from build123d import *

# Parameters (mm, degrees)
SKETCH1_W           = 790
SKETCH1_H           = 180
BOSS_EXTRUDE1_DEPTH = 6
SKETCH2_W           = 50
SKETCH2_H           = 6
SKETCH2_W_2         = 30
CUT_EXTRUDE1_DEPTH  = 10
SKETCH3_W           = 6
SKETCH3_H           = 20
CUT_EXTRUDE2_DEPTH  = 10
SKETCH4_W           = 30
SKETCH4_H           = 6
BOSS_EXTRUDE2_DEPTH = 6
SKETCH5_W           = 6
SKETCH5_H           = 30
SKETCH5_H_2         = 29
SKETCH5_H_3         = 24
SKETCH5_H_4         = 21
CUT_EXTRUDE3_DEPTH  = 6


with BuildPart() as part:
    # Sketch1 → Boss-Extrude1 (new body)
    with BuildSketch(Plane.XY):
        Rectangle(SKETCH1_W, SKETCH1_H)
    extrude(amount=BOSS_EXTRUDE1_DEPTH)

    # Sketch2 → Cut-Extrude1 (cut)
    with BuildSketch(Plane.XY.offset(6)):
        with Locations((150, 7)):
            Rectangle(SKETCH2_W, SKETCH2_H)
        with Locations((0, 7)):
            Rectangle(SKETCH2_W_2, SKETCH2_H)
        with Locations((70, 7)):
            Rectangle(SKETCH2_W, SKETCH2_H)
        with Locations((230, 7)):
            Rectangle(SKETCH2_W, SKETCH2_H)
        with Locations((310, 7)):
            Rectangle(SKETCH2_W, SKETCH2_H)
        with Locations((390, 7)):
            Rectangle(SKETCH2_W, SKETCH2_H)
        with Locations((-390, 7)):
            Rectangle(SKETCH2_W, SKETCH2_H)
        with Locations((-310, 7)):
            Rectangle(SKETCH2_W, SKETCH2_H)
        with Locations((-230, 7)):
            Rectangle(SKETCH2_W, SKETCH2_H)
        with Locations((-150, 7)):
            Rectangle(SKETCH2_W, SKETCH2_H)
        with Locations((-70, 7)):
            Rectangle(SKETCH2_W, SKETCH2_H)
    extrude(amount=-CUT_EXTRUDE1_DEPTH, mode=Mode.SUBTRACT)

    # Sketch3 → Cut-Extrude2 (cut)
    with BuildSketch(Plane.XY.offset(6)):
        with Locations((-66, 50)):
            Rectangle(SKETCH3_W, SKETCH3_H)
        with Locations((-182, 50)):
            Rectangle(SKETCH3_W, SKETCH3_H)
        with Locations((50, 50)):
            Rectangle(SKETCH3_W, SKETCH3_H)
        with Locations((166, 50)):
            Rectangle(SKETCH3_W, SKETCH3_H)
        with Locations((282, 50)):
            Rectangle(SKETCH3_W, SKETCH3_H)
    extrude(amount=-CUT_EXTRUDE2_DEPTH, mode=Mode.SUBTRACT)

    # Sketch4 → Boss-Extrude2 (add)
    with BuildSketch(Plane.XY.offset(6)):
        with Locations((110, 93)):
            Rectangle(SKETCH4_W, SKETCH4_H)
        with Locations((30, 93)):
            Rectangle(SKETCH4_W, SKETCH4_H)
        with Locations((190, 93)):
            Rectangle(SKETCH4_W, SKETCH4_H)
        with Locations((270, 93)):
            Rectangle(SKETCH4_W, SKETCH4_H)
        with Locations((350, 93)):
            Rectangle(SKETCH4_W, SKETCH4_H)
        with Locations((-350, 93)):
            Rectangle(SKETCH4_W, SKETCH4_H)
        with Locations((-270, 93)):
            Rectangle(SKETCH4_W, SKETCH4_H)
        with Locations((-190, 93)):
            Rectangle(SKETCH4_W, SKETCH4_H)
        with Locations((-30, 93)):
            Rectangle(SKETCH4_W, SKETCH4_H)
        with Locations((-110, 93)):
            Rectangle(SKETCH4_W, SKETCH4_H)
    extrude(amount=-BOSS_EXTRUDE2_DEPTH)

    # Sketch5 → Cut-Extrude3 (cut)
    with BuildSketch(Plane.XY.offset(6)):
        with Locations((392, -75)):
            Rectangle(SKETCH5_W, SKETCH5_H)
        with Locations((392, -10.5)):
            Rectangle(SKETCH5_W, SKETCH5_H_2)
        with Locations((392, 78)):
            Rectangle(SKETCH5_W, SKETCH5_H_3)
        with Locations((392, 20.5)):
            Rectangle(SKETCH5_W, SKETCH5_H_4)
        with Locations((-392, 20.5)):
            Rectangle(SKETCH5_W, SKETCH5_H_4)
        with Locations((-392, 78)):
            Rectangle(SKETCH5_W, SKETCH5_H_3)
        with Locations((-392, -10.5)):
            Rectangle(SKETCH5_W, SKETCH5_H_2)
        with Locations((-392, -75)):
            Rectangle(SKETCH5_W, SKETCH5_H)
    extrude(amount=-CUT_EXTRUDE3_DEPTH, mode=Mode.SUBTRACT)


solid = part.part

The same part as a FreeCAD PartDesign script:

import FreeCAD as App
import Part
import Sketcher
from FreeCAD import Vector
Q = App.Units.Quantity


def add_polygon(sketch, points):
    """Adds a closed chain of lines whose ends are joined by coincident constraints."""
    first, n = sketch.GeometryCount, len(points)
    for a, b in zip(points, points[1:] + points[:1]):
        sketch.addGeometry(Part.LineSegment(App.Vector(*a, 0), App.Vector(*b, 0)), False)
    for i in range(n):
        sketch.addConstraint(Sketcher.Constraint("Coincident", first + i, 2, first + (i + 1) % n, 1))

doc = App.newDocument("Part")
body = doc.addObject("PartDesign::Body", "Body")

# Sketch on XY plane
sketch1 = body.newObject("Sketcher::SketchObject", "Sketch")
sketch1.AttachmentSupport = (doc.getObject("XY_Plane"), [""])
sketch1.MapMode = "FlatFace"
add_polygon(sketch1, [(-395, 90), (-395, -90), (395, -90), (395, 90)])  # lines 0-3
sketch1.addConstraint([
    Sketcher.Constraint("Vertical", 0),
    Sketcher.Constraint("Horizontal", 1),
    Sketcher.Constraint("Vertical", 2),
    Sketcher.Constraint("Horizontal", 3),
    Sketcher.Constraint("Symmetric", 0, 2, 2, 2, -1, 1),
    Sketcher.Constraint("DistanceX", 1, 1, 1, 2, Q("790 mm")),
    Sketcher.Constraint("DistanceY", 0, 2, 0, 1, Q("180 mm")),
])
pad1 = body.newObject("PartDesign::Pad", "Pad")
pad1.Profile = sketch1
pad1.Length = 6

# Sketch on XY plane
sketch2 = body.newObject("Sketcher::SketchObject", "Sketch001")
sketch2.AttachmentSupport = (doc.getObject("XY_Plane"), [""])
sketch2.MapMode = "FlatFace"
sketch2.AttachmentOffset = App.Placement(Vector(0, 0, 6), App.Rotation())
add_polygon(sketch2, [(125, 10), (125, 4), (175, 4), (175, 10)])  # lines 0-3
add_polygon(sketch2, [(-15, 10), (-15, 4), (15, 4), (15, 10)])  # lines 4-7
add_polygon(sketch2, [(45, 10), (45, 4), (95, 4), (95, 10)])  # lines 8-11
add_polygon(sketch2, [(205, 10), (205, 4), (255, 4), (255, 10)])  # lines 12-15
add_polygon(sketch2, [(285, 10), (285, 4), (335, 4), (335, 10)])  # lines 16-19
add_polygon(sketch2, [(365, 10), (365, 4), (415, 4), (415, 10)])  # lines 20-23
add_polygon(sketch2, [(-415, 10), (-415, 4), (-365, 4), (-365, 10)])  # lines 24-27
add_polygon(sketch2, [(-335, 10), (-335, 4), (-285, 4), (-285, 10)])  # lines 28-31
add_polygon(sketch2, [(-255, 10), (-255, 4), (-205, 4), (-205, 10)])  # lines 32-35
add_polygon(sketch2, [(-175, 10), (-175, 4), (-125, 4), (-125, 10)])  # lines 36-39
add_polygon(sketch2, [(-95, 10), (-95, 4), (-45, 4), (-45, 10)])  # lines 40-43
sketch2.addConstraint([
    Sketcher.Constraint("Vertical", 0),
    Sketcher.Constraint("Horizontal", 1),
    Sketcher.Constraint("Vertical", 2),
    Sketcher.Constraint("Horizontal", 3),
    Sketcher.Constraint("Vertical", 4),
    Sketcher.Constraint("Horizontal", 5),
    Sketcher.Constraint("Vertical", 6),
    Sketcher.Constraint("Horizontal", 7),
    Sketcher.Constraint("Vertical", 8),
    Sketcher.Constraint("Horizontal", 9),
    Sketcher.Constraint("Vertical", 10),
    Sketcher.Constraint("Horizontal", 11),
    Sketcher.Constraint("Vertical", 12),
    Sketcher.Constraint("Horizontal", 13),
    Sketcher.Constraint("Vertical", 14),
    Sketcher.Constraint("Horizontal", 15),
    Sketcher.Constraint("Vertical", 16),
    Sketcher.Constraint("Horizontal", 17),
    Sketcher.Constraint("Vertical", 18),
    Sketcher.Constraint("Horizontal", 19),
    Sketcher.Constraint("Vertical", 20),
    Sketcher.Constraint("Horizontal", 21),
    Sketcher.Constraint("Vertical", 22),
    Sketcher.Constraint("Horizontal", 23),
    Sketcher.Constraint("Vertical", 24),
    Sketcher.Constraint("Horizontal", 25),
    Sketcher.Constraint("Vertical", 26),
    Sketcher.Constraint("Horizontal", 27),
    Sketcher.Constraint("Vertical", 28),
    Sketcher.Constraint("Horizontal", 29),
    Sketcher.Constraint("Vertical", 30),
    Sketcher.Constraint("Horizontal", 31),
    Sketcher.Constraint("Vertical", 32),
    Sketcher.Constraint("Horizontal", 33),
    Sketcher.Constraint("Vertical", 34),
    Sketcher.Constraint("Horizontal", 35),
    Sketcher.Constraint("Vertical", 36),
    Sketcher.Constraint("Horizontal", 37),
    Sketcher.Constraint("Vertical", 38),
    Sketcher.Constraint("Horizontal", 39),
    Sketcher.Constraint("Vertical", 40),
    Sketcher.Constraint("Horizontal", 41),
    Sketcher.Constraint("Vertical", 42),
    Sketcher.Constraint("Horizontal", 43),
    Sketcher.Constraint("Symmetric", 21, 2, 24, 2, -2),
    Sketcher.Constraint("Symmetric", 23, 2, 26, 2, -2),
    Sketcher.Constraint("Symmetric", 17, 2, 28, 2, -2),
    Sketcher.Constraint("Symmetric", 19, 2, 30, 2, -2),
    Sketcher.Constraint("Symmetric", 13, 2, 32, 2, -2),
    Sketcher.Constraint("Symmetric", 15, 2, 34, 2, -2),
    Sketcher.Constraint("Symmetric", 1, 2, 36, 2, -2),
    Sketcher.Constraint("Symmetric", 3, 2, 38, 2, -2),
    Sketcher.Constraint("Symmetric", 9, 2, 40, 2, -2),
    Sketcher.Constraint("Symmetric", 11, 2, 42, 2, -2),
    Sketcher.Constraint("Horizontal", 1, 2, 4, 2),
    Sketcher.Constraint("Horizontal", 3, 2, 6, 2),
    Sketcher.Constraint("Horizontal", 5, 2, 8, 2),
    Sketcher.Constraint("Horizontal", 7, 2, 10, 2),
    Sketcher.Constraint("Horizontal", 9, 2, 12, 2),
    Sketcher.Constraint("Horizontal", 11, 2, 14, 2),
    Sketcher.Constraint("Horizontal", 13, 2, 16, 2),
    Sketcher.Constraint("Horizontal", 15, 2, 18, 2),
    Sketcher.Constraint("Horizontal", 17, 2, 20, 2),
    Sketcher.Constraint("Horizontal", 19, 2, 22, 2),
    Sketcher.Constraint("Equal", 3, 9),
    Sketcher.Constraint("Equal", 11, 13),
    Sketcher.Constraint("Equal", 15, 17),
    Sketcher.Constraint("Equal", 19, 21),
    Sketcher.Constraint("DistanceX", 1, 1, 1, 2, Q("50 mm")),
    Sketcher.Constraint("DistanceX", 5, 1, 5, 2, Q("30 mm")),
    Sketcher.Constraint("DistanceY", 0, 2, 0, 1, Q("6 mm")),
    Sketcher.Constraint("DistanceX", -1, 1, 0, 2, Q("125 mm")),
    Sketcher.Constraint("DistanceY", -1, 1, 0, 2, Q("4 mm")),
    Sketcher.Constraint("DistanceX", 4, 2, -1, 1, Q("15 mm")),
    Sketcher.Constraint("DistanceX", -1, 1, 8, 2, Q("45 mm")),
    Sketcher.Constraint("DistanceX", -1, 1, 12, 2, Q("205 mm")),
    Sketcher.Constraint("DistanceX", -1, 1, 16, 2, Q("285 mm")),
    Sketcher.Constraint("DistanceX", -1, 1, 20, 2, Q("365 mm")),
])
pocket1 = body.newObject("PartDesign::Pocket", "Pocket")
pocket1.Profile = sketch2
pocket1.Length = 10

# Sketch on XY plane
sketch3 = body.newObject("Sketcher::SketchObject", "Sketch002")
sketch3.AttachmentSupport = (doc.getObject("XY_Plane"), [""])
sketch3.MapMode = "FlatFace"
sketch3.AttachmentOffset = App.Placement(Vector(0, 0, 6), App.Rotation())
add_polygon(sketch3, [(-69, 60), (-69, 40), (-63, 40), (-63, 60)])  # lines 0-3
add_polygon(sketch3, [(-185, 60), (-185, 40), (-179, 40), (-179, 60)])  # lines 4-7
add_polygon(sketch3, [(47, 60), (47, 40), (53, 40), (53, 60)])  # lines 8-11
add_polygon(sketch3, [(163, 60), (163, 40), (169, 40), (169, 60)])  # lines 12-15
add_polygon(sketch3, [(279, 60), (279, 40), (285, 40), (285, 60)])  # lines 16-19
sketch3.addConstraint([
    Sketcher.Constraint("Vertical", 0),
    Sketcher.Constraint("Horizontal", 1),
    Sketcher.Constraint("Vertical", 2),
    Sketcher.Constraint("Horizontal", 3),
    Sketcher.Constraint("Vertical", 4),
    Sketcher.Constraint("Horizontal", 5),
    Sketcher.Constraint("Vertical", 6),
    Sketcher.Constraint("Horizontal", 7),
    Sketcher.Constraint("Vertical", 8),
    Sketcher.Constraint("Horizontal", 9),
    Sketcher.Constraint("Vertical", 10),
    Sketcher.Constraint("Horizontal", 11),
    Sketcher.Constraint("Vertical", 12),
    Sketcher.Constraint("Horizontal", 13),
    Sketcher.Constraint("Vertical", 14),
    Sketcher.Constraint("Horizontal", 15),
    Sketcher.Constraint("Vertical", 16),
    Sketcher.Constraint("Horizontal", 17),
    Sketcher.Constraint("Vertical", 18),
    Sketcher.Constraint("Horizontal", 19),
    Sketcher.Constraint("Horizontal", 1, 2, 4, 2),
    Sketcher.Constraint("Horizontal", 3, 2, 6, 2),
    Sketcher.Constraint("Horizontal", 5, 2, 8, 2),
    Sketcher.Constraint("Horizontal", 7, 2, 10, 2),
    Sketcher.Constraint("Horizontal", 9, 2, 12, 2),
    Sketcher.Constraint("Horizontal", 11, 2, 14, 2),
    Sketcher.Constraint("Horizontal", 13, 2, 16, 2),
    Sketcher.Constraint("Horizontal", 15, 2, 18, 2),
    Sketcher.Constraint("Equal", 3, 5),
    Sketcher.Constraint("Equal", 7, 9),
    Sketcher.Constraint("Equal", 11, 13),
    Sketcher.Constraint("Equal", 15, 17),
    Sketcher.Constraint("DistanceX", 1, 1, 1, 2, Q("6 mm")),
    Sketcher.Constraint("DistanceY", 0, 2, 0, 1, Q("20 mm")),
    Sketcher.Constraint("DistanceX", 0, 2, -1, 1, Q("69 mm")),
    Sketcher.Constraint("DistanceY", -1, 1, 0, 2, Q("40 mm")),
    Sketcher.Constraint("DistanceX", 4, 2, -1, 1, Q("185 mm")),
    Sketcher.Constraint("DistanceX", -1, 1, 8, 2, Q("47 mm")),
    Sketcher.Constraint("DistanceX", -1, 1, 12, 2, Q("163 mm")),
    Sketcher.Constraint("DistanceX", -1, 1, 16, 2, Q("279 mm")),
])
pocket2 = body.newObject("PartDesign::Pocket", "Pocket001")
pocket2.Profile = sketch3
pocket2.Length = 10

# Sketch on XY plane
sketch4 = body.newObject("Sketcher::SketchObject", "Sketch003")
sketch4.AttachmentSupport = (doc.getObject("XY_Plane"), [""])
sketch4.MapMode = "FlatFace"
sketch4.AttachmentOffset = App.Placement(Vector(0, 0, 6), App.Rotation())
add_polygon(sketch4, [(95, 96), (95, 90), (125, 90), (125, 96)])  # lines 0-3
add_polygon(sketch4, [(15, 96), (15, 90), (45, 90), (45, 96)])  # lines 4-7
add_polygon(sketch4, [(175, 96), (175, 90), (205, 90), (205, 96)])  # lines 8-11
add_polygon(sketch4, [(255, 96), (255, 90), (285, 90), (285, 96)])  # lines 12-15
add_polygon(sketch4, [(335, 96), (335, 90), (365, 90), (365, 96)])  # lines 16-19
add_polygon(sketch4, [(-365, 96), (-365, 90), (-335, 90), (-335, 96)])  # lines 20-23
add_polygon(sketch4, [(-285, 96), (-285, 90), (-255, 90), (-255, 96)])  # lines 24-27
add_polygon(sketch4, [(-205, 96), (-205, 90), (-175, 90), (-175, 96)])  # lines 28-31
add_polygon(sketch4, [(-45, 96), (-45, 90), (-15, 90), (-15, 96)])  # lines 32-35
add_polygon(sketch4, [(-125, 96), (-125, 90), (-95, 90), (-95, 96)])  # lines 36-39
sketch4.addConstraint([
    Sketcher.Constraint("Vertical", 0),
    Sketcher.Constraint("Horizontal", 1),
    Sketcher.Constraint("Vertical", 2),
    Sketcher.Constraint("Horizontal", 3),
    Sketcher.Constraint("Vertical", 4),
    Sketcher.Constraint("Horizontal", 5),
    Sketcher.Constraint("Vertical", 6),
    Sketcher.Constraint("Horizontal", 7),
    Sketcher.Constraint("Vertical", 8),
    Sketcher.Constraint("Horizontal", 9),
    Sketcher.Constraint("Vertical", 10),
    Sketcher.Constraint("Horizontal", 11),
    Sketcher.Constraint("Vertical", 12),
    Sketcher.Constraint("Horizontal", 13),
    Sketcher.Constraint("Vertical", 14),
    Sketcher.Constraint("Horizontal", 15),
    Sketcher.Constraint("Vertical", 16),
    Sketcher.Constraint("Horizontal", 17),
    Sketcher.Constraint("Vertical", 18),
    Sketcher.Constraint("Horizontal", 19),
    Sketcher.Constraint("Vertical", 20),
    Sketcher.Constraint("Horizontal", 21),
    Sketcher.Constraint("Vertical", 22),
    Sketcher.Constraint("Horizontal", 23),
    Sketcher.Constraint("Vertical", 24),
    Sketcher.Constraint("Horizontal", 25),
    Sketcher.Constraint("Vertical", 26),
    Sketcher.Constraint("Horizontal", 27),
    Sketcher.Constraint("Vertical", 28),
    Sketcher.Constraint("Horizontal", 29),
    Sketcher.Constraint("Vertical", 30),
    Sketcher.Constraint("Horizontal", 31),
    Sketcher.Constraint("Vertical", 32),
    Sketcher.Constraint("Horizontal", 33),
    Sketcher.Constraint("Vertical", 34),
    Sketcher.Constraint("Horizontal", 35),
    Sketcher.Constraint("Vertical", 36),
    Sketcher.Constraint("Horizontal", 37),
    Sketcher.Constraint("Vertical", 38),
    Sketcher.Constraint("Horizontal", 39),
    Sketcher.Constraint("Symmetric", 17, 2, 20, 2, -2),
    Sketcher.Constraint("Symmetric", 19, 2, 22, 2, -2),
    Sketcher.Constraint("Symmetric", 13, 2, 24, 2, -2),
    Sketcher.Constraint("Symmetric", 15, 2, 26, 2, -2),
    Sketcher.Constraint("Symmetric", 9, 2, 28, 2, -2),
    Sketcher.Constraint("Symmetric", 11, 2, 30, 2, -2),
    Sketcher.Constraint("Symmetric", 5, 2, 32, 2, -2),
    Sketcher.Constraint("Symmetric", 7, 2, 34, 2, -2),
    Sketcher.Constraint("Symmetric", 1, 2, 36, 2, -2),
    Sketcher.Constraint("Symmetric", 3, 2, 38, 2, -2),
    Sketcher.Constraint("Horizontal", 1, 2, 4, 2),
    Sketcher.Constraint("Horizontal", 3, 2, 6, 2),
    Sketcher.Constraint("Horizontal", 5, 2, 8, 2),
    Sketcher.Constraint("Horizontal", 7, 2, 10, 2),
    Sketcher.Constraint("Horizontal", 9, 2, 12, 2),
    Sketcher.Constraint("Horizontal", 11, 2, 14, 2),
    Sketcher.Constraint("Horizontal", 13, 2, 16, 2),
    Sketcher.Constraint("Horizontal", 15, 2, 18, 2),
    Sketcher.Constraint("Equal", 3, 5),
    Sketcher.Constraint("Equal", 7, 9),
    Sketcher.Constraint("Equal", 11, 13),
    Sketcher.Constraint("Equal", 15, 17),
    Sketcher.Constraint("DistanceX", 1, 1, 1, 2, Q("30 mm")),
    Sketcher.Constraint("DistanceY", 0, 2, 0, 1, Q("6 mm")),
    Sketcher.Constraint("DistanceX", -1, 1, 0, 2, Q("95 mm")),
    Sketcher.Constraint("DistanceY", -1, 1, 0, 2, Q("90 mm")),
    Sketcher.Constraint("DistanceX", -1, 1, 4, 2, Q("15 mm")),
    Sketcher.Constraint("DistanceX", -1, 1, 8, 2, Q("175 mm")),
    Sketcher.Constraint("DistanceX", -1, 1, 12, 2, Q("255 mm")),
    Sketcher.Constraint("DistanceX", -1, 1, 16, 2, Q("335 mm")),
])
pad2 = body.newObject("PartDesign::Pad", "Pad001")
pad2.Profile = sketch4
pad2.Length = 6
pad2.Reversed = True

# Sketch on XY plane
sketch5 = body.newObject("Sketcher::SketchObject", "Sketch004")
sketch5.AttachmentSupport = (doc.getObject("XY_Plane"), [""])
sketch5.MapMode = "FlatFace"
sketch5.AttachmentOffset = App.Placement(Vector(0, 0, 6), App.Rotation())
add_polygon(sketch5, [(389, -60), (389, -90), (395, -90), (395, -60)])  # lines 0-3
add_polygon(sketch5, [(389, 4), (389, -25), (395, -25), (395, 4)])  # lines 4-7
add_polygon(sketch5, [(389, 90), (389, 66), (395, 66), (395, 90)])  # lines 8-11
add_polygon(sketch5, [(389, 31), (389, 10), (395, 10), (395, 31)])  # lines 12-15
add_polygon(sketch5, [(-395, 31), (-395, 10), (-389, 10), (-389, 31)])  # lines 16-19
add_polygon(sketch5, [(-395, 90), (-395, 66), (-389, 66), (-389, 90)])  # lines 20-23
add_polygon(sketch5, [(-395, 4), (-395, -25), (-389, -25), (-389, 4)])  # lines 24-27
add_polygon(sketch5, [(-395, -60), (-395, -90), (-389, -90), (-389, -60)])  # lines 28-31
sketch5.addConstraint([
    Sketcher.Constraint("Vertical", 0),
    Sketcher.Constraint("Horizontal", 1),
    Sketcher.Constraint("Vertical", 2),
    Sketcher.Constraint("Horizontal", 3),
    Sketcher.Constraint("Vertical", 4),
    Sketcher.Constraint("Horizontal", 5),
    Sketcher.Constraint("Vertical", 6),
    Sketcher.Constraint("Horizontal", 7),
    Sketcher.Constraint("Vertical", 8),
    Sketcher.Constraint("Horizontal", 9),
    Sketcher.Constraint("Vertical", 10),
    Sketcher.Constraint("Horizontal", 11),
    Sketcher.Constraint("Vertical", 12),
    Sketcher.Constraint("Horizontal", 13),
    Sketcher.Constraint("Vertical", 14),
    Sketcher.Constraint("Horizontal", 15),
    Sketcher.Constraint("Vertical", 16),
    Sketcher.Constraint("Horizontal", 17),
    Sketcher.Constraint("Vertical", 18),
    Sketcher.Constraint("Horizontal", 19),
    Sketcher.Constraint("Vertical", 20),
    Sketcher.Constraint("Horizontal", 21),
    Sketcher.Constraint("Vertical", 22),
    Sketcher.Constraint("Horizontal", 23),
    Sketcher.Constraint("Vertical", 24),
    Sketcher.Constraint("Horizontal", 25),
    Sketcher.Constraint("Vertical", 26),
    Sketcher.Constraint("Horizontal", 27),
    Sketcher.Constraint("Vertical", 28),
    Sketcher.Constraint("Horizontal", 29),
    Sketcher.Constraint("Vertical", 30),
    Sketcher.Constraint("Horizontal", 31),
    Sketcher.Constraint("Symmetric", 0, 2, 22, 2, -1, 1),
    Sketcher.Constraint("Symmetric", 10, 2, 28, 2, -1, 1),
    Sketcher.Constraint("Symmetric", 13, 2, 16, 2, -2),
    Sketcher.Constraint("Symmetric", 15, 2, 18, 2, -2),
    Sketcher.Constraint("Symmetric", 9, 2, 20, 2, -2),
    Sketcher.Constraint("Symmetric", 11, 2, 22, 2, -2),
    Sketcher.Constraint("Symmetric", 5, 2, 24, 2, -2),
    Sketcher.Constraint("Symmetric", 7, 2, 26, 2, -2),
    Sketcher.Constraint("Symmetric", 3, 2, 30, 2, -2),
    Sketcher.Constraint("Vertical", 3, 2, 4, 2),
    Sketcher.Constraint("Vertical", 2, 2, 5, 2),
    Sketcher.Constraint("Vertical", 6, 2, 9, 2),
    Sketcher.Constraint("Vertical", 11, 2, 12, 2),
    Sketcher.Constraint("Vertical", 10, 2, 13, 2),
    Sketcher.Constraint("DistanceX", 1, 1, 1, 2, Q("6 mm")),
    Sketcher.Constraint("DistanceY", 0, 2, 0, 1, Q("30 mm")),
    Sketcher.Constraint("DistanceY", 4, 2, 4, 1, Q("29 mm")),
    Sketcher.Constraint("DistanceY", 8, 2, 8, 1, Q("24 mm")),
    Sketcher.Constraint("DistanceY", 12, 2, 12, 1, Q("21 mm")),
    Sketcher.Constraint("DistanceX", -1, 1, 0, 2, Q("389 mm")),
    Sketcher.Constraint("DistanceY", 0, 2, -1, 1, Q("90 mm")),
    Sketcher.Constraint("DistanceY", 4, 2, -1, 1, Q("25 mm")),
    Sketcher.Constraint("DistanceY", -1, 1, 12, 2, Q("10 mm")),
])
pocket3 = body.newObject("PartDesign::Pocket", "Pocket002")
pocket3.Profile = sketch5
pocket3.Length = 6

doc.recompute()
